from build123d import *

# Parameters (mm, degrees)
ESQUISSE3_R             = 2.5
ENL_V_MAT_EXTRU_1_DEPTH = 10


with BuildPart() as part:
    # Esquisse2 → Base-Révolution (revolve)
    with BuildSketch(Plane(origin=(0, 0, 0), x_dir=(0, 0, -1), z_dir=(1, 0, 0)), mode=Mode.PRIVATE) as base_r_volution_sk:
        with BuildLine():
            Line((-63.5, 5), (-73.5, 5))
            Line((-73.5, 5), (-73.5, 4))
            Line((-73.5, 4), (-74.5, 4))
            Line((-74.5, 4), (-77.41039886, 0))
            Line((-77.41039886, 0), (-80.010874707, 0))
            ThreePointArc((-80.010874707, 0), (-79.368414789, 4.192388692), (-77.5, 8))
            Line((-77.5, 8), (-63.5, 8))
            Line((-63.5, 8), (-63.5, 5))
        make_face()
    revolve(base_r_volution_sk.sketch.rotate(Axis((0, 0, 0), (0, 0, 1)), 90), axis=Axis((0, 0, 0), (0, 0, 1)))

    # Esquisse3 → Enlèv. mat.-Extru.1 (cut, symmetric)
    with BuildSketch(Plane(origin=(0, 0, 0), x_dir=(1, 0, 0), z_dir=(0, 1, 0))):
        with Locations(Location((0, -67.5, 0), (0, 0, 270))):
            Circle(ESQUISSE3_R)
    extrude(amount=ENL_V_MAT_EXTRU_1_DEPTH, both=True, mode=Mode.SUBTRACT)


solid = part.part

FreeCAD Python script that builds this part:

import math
import FreeCAD as App
import Part
import Sketcher

V = App.Vector
Q = App.Units.Quantity

doc = App.newDocument("Part")
body = doc.addObject("PartDesign::Body", "Body")

# Sketch on YZ plane
sketch1 = body.newObject("Sketcher::SketchObject", "Sketch")
sketch1.AttachmentSupport = (doc.getObject("YZ_Plane"), [""])
sketch1.MapMode = "FlatFace"
sketch1.addGeometry([
    Part.LineSegment(V(5, 73.5, 0), V(5, 63.5, 0)),  # 0
    Part.LineSegment(V(5, 63.5, 0), V(8, 63.5, 0)),  # 1
    Part.LineSegment(V(8, 63.5, 0), V(8, 77.5, 0)),  # 2
    Part.ArcOfCircle(Part.Circle(V(0, 66, 0), V(0, 0, 1), 14), math.radians(55), math.radians(90)),  # 3
    Part.LineSegment(V(0, 80, 0), V(0, 77.4, 0)),  # 4
    Part.LineSegment(V(0, 77.4, 0), V(4, 74.5, 0)),  # 5
    Part.LineSegment(V(4, 74.5, 0), V(4, 73.5, 0)),  # 6
    Part.LineSegment(V(4, 73.5, 0), V(5, 73.5, 0)),  # 7
], False)
sketch1.addConstraint([
    Sketcher.Constraint("Coincident", 0, 2, 1, 1),
    Sketcher.Constraint("Coincident", 1, 2, 2, 1),
    Sketcher.Constraint("Coincident", 2, 2, 3, 1),
    Sketcher.Constraint("Coincident", 3, 2, 4, 1),
    Sketcher.Constraint("Coincident", 4, 2, 5, 1),
    Sketcher.Constraint("Coincident", 5, 2, 6, 1),
    Sketcher.Constraint("Coincident", 6, 2, 7, 1),
    Sketcher.Constraint("Coincident", 7, 2, 0, 1),
    Sketcher.Constraint("Vertical", 0),
    Sketcher.Constraint("Horizontal", 1),
    Sketcher.Constraint("Vertical", 2),
    Sketcher.Constraint("Vertical", 4),
    Sketcher.Constraint("Vertical", 6),
    Sketcher.Constraint("Horizontal", 7),
    Sketcher.Constraint("PointOnObject", 3, 3, -2),
    Sketcher.Constraint("PointOnObject", 3, 2, -2),
    Sketcher.Constraint("Equal", 7, 6),
    Sketcher.Constraint("Radius", 3, Q("14 mm")),
    Sketcher.Constraint("DistanceX", 1, 1, 1, 2, Q("3 mm")),
    Sketcher.Constraint("DistanceX", 7, 1, 7, 2, Q("1 mm")),
    Sketcher.Constraint("DistanceY", 0, 2, 0, 1, Q("10 mm")),
    Sketcher.Constraint("DistanceY", 2, 1, 2, 2, Q("14 mm")),
    Sketcher.Constraint("DistanceX", -1, 1, 0, 2, Q("5 mm")),
    Sketcher.Constraint("DistanceY", -1, 1, 0, 2, Q("63.5 mm")),
    Sketcher.Constraint("DistanceY", -1, 1, 4, 2, Q("77.410399 mm")),
])
revolution = body.newObject("PartDesign::Revolution", "Revolution")
revolution.Profile = sketch1
revolution.ReferenceAxis = (sketch1, ["V_Axis"])
revolution.Angle = 360

# Sketch on XZ plane
sketch2 = body.newObject("Sketcher::SketchObject", "Sketch001")
sketch2.AttachmentSupport = (doc.getObject("XZ_Plane"), [""])
sketch2.MapMode = "FlatFace"
sketch2.addGeometry(Part.Circle(V(0, 67.5, 0), V(0, 0, 1), 2.5), False)
sketch2.addConstraint([
    Sketcher.Constraint("PointOnObject", 0, 3, -2),
    Sketcher.Constraint("Diameter", 0, Q("5 mm")),
    Sketcher.Constraint("DistanceY", -1, 1, 0, 3, Q("67.5 mm")),
])
pocket1 = body.newObject("PartDesign::Pocket", "Pocket")
pocket1.Profile = sketch2
pocket1.Length = 20
pocket1.Midplane = True

doc.recompute()
